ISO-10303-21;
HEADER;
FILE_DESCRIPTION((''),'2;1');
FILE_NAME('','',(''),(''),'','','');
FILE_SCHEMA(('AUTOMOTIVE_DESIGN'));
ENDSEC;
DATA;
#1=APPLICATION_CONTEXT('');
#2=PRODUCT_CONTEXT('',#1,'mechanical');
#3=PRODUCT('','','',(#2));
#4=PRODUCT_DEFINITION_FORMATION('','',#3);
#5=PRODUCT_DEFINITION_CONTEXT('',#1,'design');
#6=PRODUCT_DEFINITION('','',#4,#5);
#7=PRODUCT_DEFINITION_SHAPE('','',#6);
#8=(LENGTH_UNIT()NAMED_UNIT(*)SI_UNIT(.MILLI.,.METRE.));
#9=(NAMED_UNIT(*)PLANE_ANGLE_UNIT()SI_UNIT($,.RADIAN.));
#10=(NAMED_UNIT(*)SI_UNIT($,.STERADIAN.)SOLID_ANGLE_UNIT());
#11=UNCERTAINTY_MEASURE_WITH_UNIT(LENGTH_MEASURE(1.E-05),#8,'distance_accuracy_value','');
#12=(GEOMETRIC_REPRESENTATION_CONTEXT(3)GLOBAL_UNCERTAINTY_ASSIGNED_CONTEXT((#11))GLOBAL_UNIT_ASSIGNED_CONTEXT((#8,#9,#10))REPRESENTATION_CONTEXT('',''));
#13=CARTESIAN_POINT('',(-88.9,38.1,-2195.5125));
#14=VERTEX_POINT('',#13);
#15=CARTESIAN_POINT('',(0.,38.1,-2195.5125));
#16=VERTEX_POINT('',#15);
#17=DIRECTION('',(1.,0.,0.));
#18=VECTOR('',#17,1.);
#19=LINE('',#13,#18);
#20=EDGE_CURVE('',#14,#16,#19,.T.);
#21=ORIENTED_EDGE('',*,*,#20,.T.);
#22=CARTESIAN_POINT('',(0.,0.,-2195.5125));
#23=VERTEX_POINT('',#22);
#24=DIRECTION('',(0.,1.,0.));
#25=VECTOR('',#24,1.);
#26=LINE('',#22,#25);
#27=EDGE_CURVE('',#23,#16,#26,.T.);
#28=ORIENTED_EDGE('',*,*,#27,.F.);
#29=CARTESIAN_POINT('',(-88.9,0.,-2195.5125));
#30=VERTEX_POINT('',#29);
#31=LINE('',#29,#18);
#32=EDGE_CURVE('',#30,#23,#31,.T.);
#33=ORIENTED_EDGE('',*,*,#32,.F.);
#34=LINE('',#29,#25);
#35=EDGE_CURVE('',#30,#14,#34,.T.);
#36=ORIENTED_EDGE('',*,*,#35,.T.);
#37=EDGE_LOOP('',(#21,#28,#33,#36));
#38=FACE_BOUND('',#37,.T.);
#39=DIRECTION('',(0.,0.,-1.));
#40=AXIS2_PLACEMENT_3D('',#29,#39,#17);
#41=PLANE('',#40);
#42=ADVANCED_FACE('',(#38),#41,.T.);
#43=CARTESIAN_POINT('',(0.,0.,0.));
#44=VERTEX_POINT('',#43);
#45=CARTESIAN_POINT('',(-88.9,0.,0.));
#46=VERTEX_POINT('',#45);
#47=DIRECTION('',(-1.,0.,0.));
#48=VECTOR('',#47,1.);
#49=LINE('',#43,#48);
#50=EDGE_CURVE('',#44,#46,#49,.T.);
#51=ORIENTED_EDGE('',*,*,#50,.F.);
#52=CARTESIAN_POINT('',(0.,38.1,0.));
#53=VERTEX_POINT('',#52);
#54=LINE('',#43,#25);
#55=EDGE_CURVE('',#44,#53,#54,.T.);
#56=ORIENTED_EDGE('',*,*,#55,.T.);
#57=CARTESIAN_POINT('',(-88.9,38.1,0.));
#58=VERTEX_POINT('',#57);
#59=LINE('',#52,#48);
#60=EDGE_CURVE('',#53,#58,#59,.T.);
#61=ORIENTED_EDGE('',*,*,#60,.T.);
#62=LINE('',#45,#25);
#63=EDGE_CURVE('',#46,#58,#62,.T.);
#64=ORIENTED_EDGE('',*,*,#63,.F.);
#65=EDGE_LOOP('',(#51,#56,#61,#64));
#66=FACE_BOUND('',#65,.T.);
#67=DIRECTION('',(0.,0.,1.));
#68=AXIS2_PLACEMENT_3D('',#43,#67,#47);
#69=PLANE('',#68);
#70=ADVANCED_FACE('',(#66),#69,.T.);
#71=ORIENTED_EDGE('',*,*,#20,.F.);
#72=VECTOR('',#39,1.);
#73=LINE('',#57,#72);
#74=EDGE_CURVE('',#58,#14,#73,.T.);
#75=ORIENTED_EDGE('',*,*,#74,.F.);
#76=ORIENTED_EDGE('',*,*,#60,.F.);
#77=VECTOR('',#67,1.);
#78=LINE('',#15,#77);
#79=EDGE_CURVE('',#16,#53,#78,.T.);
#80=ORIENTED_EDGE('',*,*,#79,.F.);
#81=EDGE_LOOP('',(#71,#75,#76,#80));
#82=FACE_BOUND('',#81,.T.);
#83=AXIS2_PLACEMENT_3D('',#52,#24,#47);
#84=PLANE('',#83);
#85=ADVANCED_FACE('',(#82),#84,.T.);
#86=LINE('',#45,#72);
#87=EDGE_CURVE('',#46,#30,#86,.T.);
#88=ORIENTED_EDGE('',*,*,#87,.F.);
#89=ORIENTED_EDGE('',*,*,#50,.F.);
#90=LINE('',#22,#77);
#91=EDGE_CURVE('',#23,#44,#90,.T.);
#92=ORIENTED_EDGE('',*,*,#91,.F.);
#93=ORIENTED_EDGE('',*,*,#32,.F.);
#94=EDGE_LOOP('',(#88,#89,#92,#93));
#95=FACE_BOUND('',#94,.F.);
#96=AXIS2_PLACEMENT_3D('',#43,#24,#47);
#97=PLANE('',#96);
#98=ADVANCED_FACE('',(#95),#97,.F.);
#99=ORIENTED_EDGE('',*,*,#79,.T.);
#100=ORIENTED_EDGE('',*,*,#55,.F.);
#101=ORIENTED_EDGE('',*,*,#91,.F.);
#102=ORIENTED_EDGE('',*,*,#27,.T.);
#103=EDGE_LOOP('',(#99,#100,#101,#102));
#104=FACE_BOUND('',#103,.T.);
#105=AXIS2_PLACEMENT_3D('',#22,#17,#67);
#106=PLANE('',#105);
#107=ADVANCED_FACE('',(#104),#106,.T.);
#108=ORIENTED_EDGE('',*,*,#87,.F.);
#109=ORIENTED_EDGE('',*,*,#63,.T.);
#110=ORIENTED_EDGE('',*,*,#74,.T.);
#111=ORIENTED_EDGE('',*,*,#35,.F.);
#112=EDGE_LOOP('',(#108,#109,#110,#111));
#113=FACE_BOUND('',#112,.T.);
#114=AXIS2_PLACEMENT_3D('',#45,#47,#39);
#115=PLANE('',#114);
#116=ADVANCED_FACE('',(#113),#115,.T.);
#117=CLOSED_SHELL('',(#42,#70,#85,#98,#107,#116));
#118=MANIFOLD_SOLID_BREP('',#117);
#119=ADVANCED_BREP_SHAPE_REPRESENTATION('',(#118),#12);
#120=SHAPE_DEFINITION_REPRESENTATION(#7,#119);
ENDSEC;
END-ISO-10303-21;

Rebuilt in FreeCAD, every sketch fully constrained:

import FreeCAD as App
import Part
import Sketcher

V = App.Vector
Q = App.Units.Quantity

doc = App.newDocument("Part")
body = doc.addObject("PartDesign::Body", "Body")

# Sketch on XZ plane
sketch1 = doc.addObject("Sketcher::SketchObject", "Sketch")
body.addObject(sketch1)
sketch1.AttachmentSupport = (doc.XZ_Plane, [""])
sketch1.MapMode = "FlatFace"
sketch1.addGeometry(Part.LineSegment(V(-89, 0, 0), V(0, 0, 0)), False)
sketch1.addGeometry(Part.LineSegment(V(0, 0, 0), V(0, -2196, 0)), False)
sketch1.addGeometry(Part.LineSegment(V(0, -2196, 0), V(-89, -2196, 0)), False)
sketch1.addGeometry(Part.LineSegment(V(-89, -2196, 0), V(-89, 0, 0)), False)
sketch1.addConstraint(Sketcher.Constraint("Coincident", 0, 2, 1, 1))
sketch1.addConstraint(Sketcher.Constraint("Coincident", 1, 2, 2, 1))
sketch1.addConstraint(Sketcher.Constraint("Coincident", 2, 2, 3, 1))
sketch1.addConstraint(Sketcher.Constraint("Coincident", 3, 2, 0, 1))
sketch1.addConstraint(Sketcher.Constraint("Horizontal", 0))
sketch1.addConstraint(Sketcher.Constraint("Vertical", 1))
sketch1.addConstraint(Sketcher.Constraint("Horizontal", 2))
sketch1.addConstraint(Sketcher.Constraint("Vertical", 3))
sketch1.addConstraint(Sketcher.Constraint("Coincident", 0, 2, -1, 1))
sketch1.addConstraint(Sketcher.Constraint("DistanceX", 0, 1, 0, 2, Q("3.5 in")))
sketch1.addConstraint(Sketcher.Constraint("DistanceY", 1, 2, 1, 1, Q("86.4375 in")))
pad1 = doc.addObject("PartDesign::Pad", "Pad")
body.addObject(pad1)
pad1.Profile = sketch1
pad1.Length = Q("1.5 in")
pad1.Reversed = True

doc.recompute()
